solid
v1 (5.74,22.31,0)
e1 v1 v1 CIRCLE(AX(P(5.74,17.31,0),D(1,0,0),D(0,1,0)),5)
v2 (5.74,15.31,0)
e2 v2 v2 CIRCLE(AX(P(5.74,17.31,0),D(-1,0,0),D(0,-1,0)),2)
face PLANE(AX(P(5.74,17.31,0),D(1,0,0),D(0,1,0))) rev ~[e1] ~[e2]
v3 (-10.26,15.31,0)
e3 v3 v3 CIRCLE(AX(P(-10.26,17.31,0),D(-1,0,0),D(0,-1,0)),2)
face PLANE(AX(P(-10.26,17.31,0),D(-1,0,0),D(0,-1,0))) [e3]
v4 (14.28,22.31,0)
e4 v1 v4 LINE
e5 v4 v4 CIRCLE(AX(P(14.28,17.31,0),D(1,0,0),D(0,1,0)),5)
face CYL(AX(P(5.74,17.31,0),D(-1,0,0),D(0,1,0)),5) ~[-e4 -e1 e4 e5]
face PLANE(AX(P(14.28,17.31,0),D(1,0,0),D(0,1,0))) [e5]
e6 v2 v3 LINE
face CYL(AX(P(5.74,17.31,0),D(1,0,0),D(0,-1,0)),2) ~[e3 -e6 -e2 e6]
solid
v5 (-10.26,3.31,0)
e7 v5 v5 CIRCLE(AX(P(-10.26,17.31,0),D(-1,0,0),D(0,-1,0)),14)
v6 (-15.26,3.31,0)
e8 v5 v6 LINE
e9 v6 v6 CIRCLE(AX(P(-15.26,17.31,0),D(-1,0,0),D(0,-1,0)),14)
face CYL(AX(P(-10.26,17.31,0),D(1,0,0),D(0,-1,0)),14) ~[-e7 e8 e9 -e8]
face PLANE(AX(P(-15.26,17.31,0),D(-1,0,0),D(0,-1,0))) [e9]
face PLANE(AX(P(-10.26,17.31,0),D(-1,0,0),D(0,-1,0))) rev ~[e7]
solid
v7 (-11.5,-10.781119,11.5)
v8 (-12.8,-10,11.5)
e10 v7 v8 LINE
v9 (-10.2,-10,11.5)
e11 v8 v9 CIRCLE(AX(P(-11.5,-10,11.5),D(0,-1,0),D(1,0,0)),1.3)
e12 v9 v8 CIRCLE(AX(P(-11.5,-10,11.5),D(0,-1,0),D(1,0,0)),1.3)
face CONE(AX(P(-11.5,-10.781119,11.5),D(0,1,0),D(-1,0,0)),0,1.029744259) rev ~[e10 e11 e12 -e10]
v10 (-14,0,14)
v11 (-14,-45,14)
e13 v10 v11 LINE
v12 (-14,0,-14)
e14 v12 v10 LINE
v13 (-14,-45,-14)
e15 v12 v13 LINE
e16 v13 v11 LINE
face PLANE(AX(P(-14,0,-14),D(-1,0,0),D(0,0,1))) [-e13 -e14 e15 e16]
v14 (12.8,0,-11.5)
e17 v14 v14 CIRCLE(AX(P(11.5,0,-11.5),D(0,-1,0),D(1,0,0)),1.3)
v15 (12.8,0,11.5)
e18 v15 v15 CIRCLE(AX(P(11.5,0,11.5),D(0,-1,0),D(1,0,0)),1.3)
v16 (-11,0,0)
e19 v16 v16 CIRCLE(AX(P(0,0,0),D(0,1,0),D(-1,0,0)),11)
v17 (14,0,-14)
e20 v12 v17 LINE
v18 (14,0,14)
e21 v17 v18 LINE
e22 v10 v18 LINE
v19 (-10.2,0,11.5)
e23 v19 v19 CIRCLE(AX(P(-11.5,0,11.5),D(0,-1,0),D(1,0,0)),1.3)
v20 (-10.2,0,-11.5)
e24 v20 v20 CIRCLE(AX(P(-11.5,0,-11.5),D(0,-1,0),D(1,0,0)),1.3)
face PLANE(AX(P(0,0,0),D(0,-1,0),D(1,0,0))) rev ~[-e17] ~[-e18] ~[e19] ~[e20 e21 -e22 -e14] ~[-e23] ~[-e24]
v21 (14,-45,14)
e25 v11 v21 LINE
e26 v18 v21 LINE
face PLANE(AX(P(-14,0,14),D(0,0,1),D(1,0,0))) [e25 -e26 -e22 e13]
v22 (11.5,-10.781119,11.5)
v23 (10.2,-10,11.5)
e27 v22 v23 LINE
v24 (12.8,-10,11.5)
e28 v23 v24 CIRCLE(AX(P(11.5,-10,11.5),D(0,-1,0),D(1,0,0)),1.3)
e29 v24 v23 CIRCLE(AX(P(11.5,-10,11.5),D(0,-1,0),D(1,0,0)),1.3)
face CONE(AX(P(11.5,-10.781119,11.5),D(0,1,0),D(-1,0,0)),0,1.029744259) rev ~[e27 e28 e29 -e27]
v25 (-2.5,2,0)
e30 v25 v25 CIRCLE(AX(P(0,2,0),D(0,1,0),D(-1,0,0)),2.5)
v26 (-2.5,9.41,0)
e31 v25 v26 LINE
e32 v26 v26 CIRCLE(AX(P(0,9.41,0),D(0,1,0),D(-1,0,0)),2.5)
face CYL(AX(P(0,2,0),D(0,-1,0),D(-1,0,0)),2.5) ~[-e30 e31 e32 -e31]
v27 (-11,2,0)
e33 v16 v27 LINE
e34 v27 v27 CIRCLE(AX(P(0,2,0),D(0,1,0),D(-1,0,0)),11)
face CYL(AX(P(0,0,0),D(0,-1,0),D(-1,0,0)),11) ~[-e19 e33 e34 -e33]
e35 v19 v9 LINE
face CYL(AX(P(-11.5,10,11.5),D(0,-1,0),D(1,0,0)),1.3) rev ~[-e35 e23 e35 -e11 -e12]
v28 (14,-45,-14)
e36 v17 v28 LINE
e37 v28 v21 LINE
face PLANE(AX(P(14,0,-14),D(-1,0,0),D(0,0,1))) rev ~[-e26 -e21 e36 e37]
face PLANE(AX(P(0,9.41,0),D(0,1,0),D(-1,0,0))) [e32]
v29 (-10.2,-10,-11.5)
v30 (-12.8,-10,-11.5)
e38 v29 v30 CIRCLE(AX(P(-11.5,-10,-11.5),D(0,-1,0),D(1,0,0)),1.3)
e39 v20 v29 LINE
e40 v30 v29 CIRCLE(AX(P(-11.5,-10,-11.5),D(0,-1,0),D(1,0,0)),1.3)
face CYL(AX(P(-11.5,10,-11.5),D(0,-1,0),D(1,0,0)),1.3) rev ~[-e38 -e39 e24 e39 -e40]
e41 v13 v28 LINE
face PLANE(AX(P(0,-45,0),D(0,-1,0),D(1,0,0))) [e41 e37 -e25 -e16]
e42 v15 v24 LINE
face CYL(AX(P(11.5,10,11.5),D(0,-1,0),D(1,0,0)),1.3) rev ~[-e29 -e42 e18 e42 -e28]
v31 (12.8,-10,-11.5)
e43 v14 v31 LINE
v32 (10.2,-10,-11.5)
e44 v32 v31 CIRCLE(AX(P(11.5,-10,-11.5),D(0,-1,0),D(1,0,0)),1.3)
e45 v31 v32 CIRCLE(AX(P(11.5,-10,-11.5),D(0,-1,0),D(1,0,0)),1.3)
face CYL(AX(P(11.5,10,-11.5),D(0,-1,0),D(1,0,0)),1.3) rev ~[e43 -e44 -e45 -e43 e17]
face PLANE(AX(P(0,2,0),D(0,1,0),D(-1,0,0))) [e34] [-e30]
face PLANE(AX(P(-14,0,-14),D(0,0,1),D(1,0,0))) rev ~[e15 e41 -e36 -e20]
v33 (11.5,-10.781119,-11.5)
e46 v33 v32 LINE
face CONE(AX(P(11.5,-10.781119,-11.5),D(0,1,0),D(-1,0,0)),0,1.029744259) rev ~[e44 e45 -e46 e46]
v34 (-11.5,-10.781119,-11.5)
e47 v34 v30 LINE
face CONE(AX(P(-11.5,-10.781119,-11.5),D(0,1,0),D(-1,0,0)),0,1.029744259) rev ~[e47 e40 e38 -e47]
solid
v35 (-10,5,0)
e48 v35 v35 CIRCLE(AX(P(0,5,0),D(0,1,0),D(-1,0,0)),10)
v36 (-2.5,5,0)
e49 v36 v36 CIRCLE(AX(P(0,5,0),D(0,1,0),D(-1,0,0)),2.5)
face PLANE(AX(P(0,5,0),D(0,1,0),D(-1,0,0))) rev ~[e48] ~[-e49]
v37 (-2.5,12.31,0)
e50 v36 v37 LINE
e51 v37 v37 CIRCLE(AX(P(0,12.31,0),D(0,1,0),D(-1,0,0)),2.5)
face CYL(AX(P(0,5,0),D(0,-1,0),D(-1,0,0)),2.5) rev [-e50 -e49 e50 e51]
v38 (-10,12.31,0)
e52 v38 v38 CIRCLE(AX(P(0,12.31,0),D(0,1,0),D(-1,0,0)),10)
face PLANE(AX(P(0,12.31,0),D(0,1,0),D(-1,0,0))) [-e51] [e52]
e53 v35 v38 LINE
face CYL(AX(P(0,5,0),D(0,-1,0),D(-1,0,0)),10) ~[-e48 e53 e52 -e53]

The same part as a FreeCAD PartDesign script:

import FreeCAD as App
import Part
import Sketcher
from FreeCAD import Vector
Q = App.Units.Quantity

doc = App.newDocument("Part")
body = doc.addObject("PartDesign::Body", "Body")

# Sketch on XZ plane
sketch1 = body.newObject("Sketcher::SketchObject", "Sketch")
sketch1.AttachmentSupport = (doc.getObject("XZ_Plane"), [""])
sketch1.MapMode = "FlatFace"
sketch1.addGeometry(Part.LineSegment(Vector(-14, 14, 0), Vector(-14, -14, 0)), False)
sketch1.addGeometry(Part.LineSegment(Vector(-14, -14, 0), Vector(14, -14, 0)), False)
sketch1.addGeometry(Part.LineSegment(Vector(14, -14, 0), Vector(14, 14, 0)), False)
sketch1.addGeometry(Part.LineSegment(Vector(14, 14, 0), Vector(-14, 14, 0)), False)
sketch1.addConstraint(Sketcher.Constraint("Coincident", 0, 2, 1, 1))
sketch1.addConstraint(Sketcher.Constraint("Coincident", 1, 2, 2, 1))
sketch1.addConstraint(Sketcher.Constraint("Coincident", 2, 2, 3, 1))
sketch1.addConstraint(Sketcher.Constraint("Coincident", 3, 2, 0, 1))
sketch1.addConstraint(Sketcher.Constraint("Vertical", 0))
sketch1.addConstraint(Sketcher.Constraint("Horizontal", 1))
sketch1.addConstraint(Sketcher.Constraint("Vertical", 2))
sketch1.addConstraint(Sketcher.Constraint("Horizontal", 3))
sketch1.addConstraint(Sketcher.Constraint("Symmetric", 0, 2, 2, 2, -1, 1))
sketch1.addConstraint(Sketcher.Constraint("Equal", 3, 0))
sketch1.addConstraint(Sketcher.Constraint("DistanceX", 1, 1, 1, 2, Q("28 mm")))
pad1 = body.newObject("PartDesign::Pad", "Pad")
pad1.Profile = sketch1
pad1.Length = 45

# Sketch on XZ plane
sketch2 = body.newObject("Sketcher::SketchObject", "Sketch001")
sketch2.AttachmentSupport = (doc.getObject("XZ_Plane"), [""])
sketch2.MapMode = "FlatFace"
sketch2.addGeometry(Part.Circle(Vector(0, 0, 0), Vector(0, 0, 1), 11), False)
sketch2.addConstraint(Sketcher.Constraint("Coincident", 0, 3, -1, 1))
sketch2.addConstraint(Sketcher.Constraint("Diameter", 0, Q("22 mm")))
pad2 = body.newObject("PartDesign::Pad", "Pad001")
pad2.Profile = sketch2
pad2.Length = 2
pad2.Reversed = True

# Sketch on XZ plane
sketch3 = body.newObject("Sketcher::SketchObject", "Sketch002")
sketch3.AttachmentSupport = (doc.getObject("XZ_Plane"), [""])
sketch3.MapMode = "FlatFace"
sketch3.addGeometry(Part.Circle(Vector(11.5, 11.5, 0), Vector(0, 0, 1), 1.3), False)
sketch3.addGeometry(Part.Circle(Vector(-11.5, 11.5, 0), Vector(0, 0, 1), 1.3), False)
sketch3.addGeometry(Part.Circle(Vector(-11.5, -11.5, 0), Vector(0, 0, 1), 1.3), False)
sketch3.addGeometry(Part.Circle(Vector(11.5, -11.5, 0), Vector(0, 0, 1), 1.3), False)
sketch3.addConstraint(Sketcher.Constraint("Equal", 0, 1))
sketch3.addConstraint(Sketcher.Constraint("Equal", 1, 2))
sketch3.addConstraint(Sketcher.Constraint("Equal", 2, 3))
sketch3.addConstraint(Sketcher.Constraint("Symmetric", 0, 3, 2, 3, -1, 1))
sketch3.addConstraint(Sketcher.Constraint("Symmetric", 1, 3, 3, 3, -1, 1))
sketch3.addConstraint(Sketcher.Constraint("Symmetric", 0, 3, 1, 3, -2))
sketch3.addConstraint(Sketcher.Constraint("Diameter", 0, Q("2.6 mm")))
sketch3.addConstraint(Sketcher.Constraint("DistanceX", 1, 3, 0, 3, Q("23 mm")))
sketch3.addConstraint(Sketcher.Constraint("DistanceY", 2, 3, 1, 3, Q("23 mm")))
doc.recompute()
hole = body.newObject("PartDesign::Hole", "Hole")
hole.Profile = sketch3
hole.ThreadType = "None"
hole.Diameter = 2.6
hole.DepthType = "Dimension"
hole.Depth = 10
hole.DrillPoint = "Angled"
hole.DrillPointAngle = 118
hole.Reversed = True

# Sketch on XZ plane
sketch4 = body.newObject("Sketcher::SketchObject", "Sketch003")
sketch4.AttachmentSupport = (doc.getObject("XZ_Plane"), [""])
sketch4.MapMode = "FlatFace"
sketch4.AttachmentOffset = App.Placement(Vector(0, 0, -2), App.Rotation())
sketch4.addGeometry(Part.Circle(Vector(0, 0, 0), Vector(0, 0, 1), 2.5), False)
sketch4.addConstraint(Sketcher.Constraint("Coincident", 0, 3, -1, 1))
sketch4.addConstraint(Sketcher.Constraint("Diameter", 0, Q("5 mm")))
pad3 = body.newObject("PartDesign::Pad", "Pad002")
pad3.Profile = sketch4
pad3.Length = 7.41
pad3.Reversed = True
body2 = doc.addObject("PartDesign::Body", "Body001")

# Sketch on XZ plane
sketch5 = body2.newObject("Sketcher::SketchObject", "Sketch004")
sketch5.AttachmentSupport = (doc.getObject("XZ_Plane001"), [""])
sketch5.MapMode = "FlatFace"
sketch5.AttachmentOffset = App.Placement(Vector(0, 0, -5), App.Rotation())
sketch5.addGeometry(Part.Circle(Vector(0, 0, 0), Vector(0, 0, 1), 10), False)
sketch5.addGeometry(Part.Circle(Vector(0, 0, 0), Vector(0, 0, 1), 2.5), False)
sketch5.addConstraint(Sketcher.Constraint("Coincident", 0, 3, -1, 1))
sketch5.addConstraint(Sketcher.Constraint("Coincident", 1, 3, -1, 1))
sketch5.addConstraint(Sketcher.Constraint("Diameter", 0, Q("20 mm")))
sketch5.addConstraint(Sketcher.Constraint("Diameter", 1, Q("5 mm")))
pad4 = body2.newObject("PartDesign::Pad", "Pad003")
pad4.Profile = sketch5
pad4.Length = 7.31
pad4.Reversed = True
body3 = doc.addObject("PartDesign::Body", "Body002")

# Sketch on YZ plane
sketch6 = body3.newObject("Sketcher::SketchObject", "Sketch005")
sketch6.AttachmentSupport = (doc.getObject("YZ_Plane002"), [""])
sketch6.MapMode = "FlatFace"
sketch6.AttachmentOffset = App.Placement(Vector(0, 0, 5.74), App.Rotation())
sketch6.addGeometry(Part.Circle(Vector(17, 0, 0), Vector(0, 0, 1), 5), False)
sketch6.addConstraint(Sketcher.Constraint("PointOnObject", 0, 3, -1))
sketch6.addConstraint(Sketcher.Constraint("Diameter", 0, Q("10 mm")))
sketch6.addConstraint(Sketcher.Constraint("DistanceX", -1, 1, 0, 3, Q("17.31 mm")))
pad5 = body3.newObject("PartDesign::Pad", "Pad004")
pad5.Profile = sketch6
pad5.Length = 8.54

# Sketch on YZ plane
sketch7 = body3.newObject("Sketcher::SketchObject", "Sketch006")
sketch7.AttachmentSupport = (doc.getObject("YZ_Plane002"), [""])
sketch7.MapMode = "FlatFace"
sketch7.AttachmentOffset = App.Placement(Vector(0, 0, 5.74), App.Rotation())
sketch7.addGeometry(Part.Circle(Vector(17.3, 0, 0), Vector(0, 0, 1), 2), False)
sketch7.addConstraint(Sketcher.Constraint("PointOnObject", 0, 3, -1))
sketch7.addConstraint(Sketcher.Constraint("Diameter", 0, Q("4 mm")))
sketch7.addConstraint(Sketcher.Constraint("DistanceX", -1, 1, 0, 3, Q("17.31 mm")))
pad6 = body3.newObject("PartDesign::Pad", "Pad005")
pad6.Profile = sketch7
pad6.Length = 16
pad6.Reversed = True
body4 = doc.addObject("PartDesign::Body", "Body003")

# Sketch on YZ plane
sketch8 = body4.newObject("Sketcher::SketchObject", "Sketch007")
sketch8.AttachmentSupport = (doc.getObject("YZ_Plane003"), [""])
sketch8.MapMode = "FlatFace"
sketch8.AttachmentOffset = App.Placement(Vector(0, 0, -10.26), App.Rotation())
sketch8.addGeometry(Part.Circle(Vector(17, 0, 0), Vector(0, 0, 1), 14), False)
sketch8.addConstraint(Sketcher.Constraint("PointOnObject", 0, 3, -1))
sketch8.addConstraint(Sketcher.Constraint("Diameter", 0, Q("28 mm")))
sketch8.addConstraint(Sketcher.Constraint("DistanceX", -1, 1, 0, 3, Q("17.31 mm")))
pad7 = body4.newObject("PartDesign::Pad", "Pad006")
pad7.Profile = sketch8
pad7.Length = 5
pad7.Reversed = True

doc.recompute()
